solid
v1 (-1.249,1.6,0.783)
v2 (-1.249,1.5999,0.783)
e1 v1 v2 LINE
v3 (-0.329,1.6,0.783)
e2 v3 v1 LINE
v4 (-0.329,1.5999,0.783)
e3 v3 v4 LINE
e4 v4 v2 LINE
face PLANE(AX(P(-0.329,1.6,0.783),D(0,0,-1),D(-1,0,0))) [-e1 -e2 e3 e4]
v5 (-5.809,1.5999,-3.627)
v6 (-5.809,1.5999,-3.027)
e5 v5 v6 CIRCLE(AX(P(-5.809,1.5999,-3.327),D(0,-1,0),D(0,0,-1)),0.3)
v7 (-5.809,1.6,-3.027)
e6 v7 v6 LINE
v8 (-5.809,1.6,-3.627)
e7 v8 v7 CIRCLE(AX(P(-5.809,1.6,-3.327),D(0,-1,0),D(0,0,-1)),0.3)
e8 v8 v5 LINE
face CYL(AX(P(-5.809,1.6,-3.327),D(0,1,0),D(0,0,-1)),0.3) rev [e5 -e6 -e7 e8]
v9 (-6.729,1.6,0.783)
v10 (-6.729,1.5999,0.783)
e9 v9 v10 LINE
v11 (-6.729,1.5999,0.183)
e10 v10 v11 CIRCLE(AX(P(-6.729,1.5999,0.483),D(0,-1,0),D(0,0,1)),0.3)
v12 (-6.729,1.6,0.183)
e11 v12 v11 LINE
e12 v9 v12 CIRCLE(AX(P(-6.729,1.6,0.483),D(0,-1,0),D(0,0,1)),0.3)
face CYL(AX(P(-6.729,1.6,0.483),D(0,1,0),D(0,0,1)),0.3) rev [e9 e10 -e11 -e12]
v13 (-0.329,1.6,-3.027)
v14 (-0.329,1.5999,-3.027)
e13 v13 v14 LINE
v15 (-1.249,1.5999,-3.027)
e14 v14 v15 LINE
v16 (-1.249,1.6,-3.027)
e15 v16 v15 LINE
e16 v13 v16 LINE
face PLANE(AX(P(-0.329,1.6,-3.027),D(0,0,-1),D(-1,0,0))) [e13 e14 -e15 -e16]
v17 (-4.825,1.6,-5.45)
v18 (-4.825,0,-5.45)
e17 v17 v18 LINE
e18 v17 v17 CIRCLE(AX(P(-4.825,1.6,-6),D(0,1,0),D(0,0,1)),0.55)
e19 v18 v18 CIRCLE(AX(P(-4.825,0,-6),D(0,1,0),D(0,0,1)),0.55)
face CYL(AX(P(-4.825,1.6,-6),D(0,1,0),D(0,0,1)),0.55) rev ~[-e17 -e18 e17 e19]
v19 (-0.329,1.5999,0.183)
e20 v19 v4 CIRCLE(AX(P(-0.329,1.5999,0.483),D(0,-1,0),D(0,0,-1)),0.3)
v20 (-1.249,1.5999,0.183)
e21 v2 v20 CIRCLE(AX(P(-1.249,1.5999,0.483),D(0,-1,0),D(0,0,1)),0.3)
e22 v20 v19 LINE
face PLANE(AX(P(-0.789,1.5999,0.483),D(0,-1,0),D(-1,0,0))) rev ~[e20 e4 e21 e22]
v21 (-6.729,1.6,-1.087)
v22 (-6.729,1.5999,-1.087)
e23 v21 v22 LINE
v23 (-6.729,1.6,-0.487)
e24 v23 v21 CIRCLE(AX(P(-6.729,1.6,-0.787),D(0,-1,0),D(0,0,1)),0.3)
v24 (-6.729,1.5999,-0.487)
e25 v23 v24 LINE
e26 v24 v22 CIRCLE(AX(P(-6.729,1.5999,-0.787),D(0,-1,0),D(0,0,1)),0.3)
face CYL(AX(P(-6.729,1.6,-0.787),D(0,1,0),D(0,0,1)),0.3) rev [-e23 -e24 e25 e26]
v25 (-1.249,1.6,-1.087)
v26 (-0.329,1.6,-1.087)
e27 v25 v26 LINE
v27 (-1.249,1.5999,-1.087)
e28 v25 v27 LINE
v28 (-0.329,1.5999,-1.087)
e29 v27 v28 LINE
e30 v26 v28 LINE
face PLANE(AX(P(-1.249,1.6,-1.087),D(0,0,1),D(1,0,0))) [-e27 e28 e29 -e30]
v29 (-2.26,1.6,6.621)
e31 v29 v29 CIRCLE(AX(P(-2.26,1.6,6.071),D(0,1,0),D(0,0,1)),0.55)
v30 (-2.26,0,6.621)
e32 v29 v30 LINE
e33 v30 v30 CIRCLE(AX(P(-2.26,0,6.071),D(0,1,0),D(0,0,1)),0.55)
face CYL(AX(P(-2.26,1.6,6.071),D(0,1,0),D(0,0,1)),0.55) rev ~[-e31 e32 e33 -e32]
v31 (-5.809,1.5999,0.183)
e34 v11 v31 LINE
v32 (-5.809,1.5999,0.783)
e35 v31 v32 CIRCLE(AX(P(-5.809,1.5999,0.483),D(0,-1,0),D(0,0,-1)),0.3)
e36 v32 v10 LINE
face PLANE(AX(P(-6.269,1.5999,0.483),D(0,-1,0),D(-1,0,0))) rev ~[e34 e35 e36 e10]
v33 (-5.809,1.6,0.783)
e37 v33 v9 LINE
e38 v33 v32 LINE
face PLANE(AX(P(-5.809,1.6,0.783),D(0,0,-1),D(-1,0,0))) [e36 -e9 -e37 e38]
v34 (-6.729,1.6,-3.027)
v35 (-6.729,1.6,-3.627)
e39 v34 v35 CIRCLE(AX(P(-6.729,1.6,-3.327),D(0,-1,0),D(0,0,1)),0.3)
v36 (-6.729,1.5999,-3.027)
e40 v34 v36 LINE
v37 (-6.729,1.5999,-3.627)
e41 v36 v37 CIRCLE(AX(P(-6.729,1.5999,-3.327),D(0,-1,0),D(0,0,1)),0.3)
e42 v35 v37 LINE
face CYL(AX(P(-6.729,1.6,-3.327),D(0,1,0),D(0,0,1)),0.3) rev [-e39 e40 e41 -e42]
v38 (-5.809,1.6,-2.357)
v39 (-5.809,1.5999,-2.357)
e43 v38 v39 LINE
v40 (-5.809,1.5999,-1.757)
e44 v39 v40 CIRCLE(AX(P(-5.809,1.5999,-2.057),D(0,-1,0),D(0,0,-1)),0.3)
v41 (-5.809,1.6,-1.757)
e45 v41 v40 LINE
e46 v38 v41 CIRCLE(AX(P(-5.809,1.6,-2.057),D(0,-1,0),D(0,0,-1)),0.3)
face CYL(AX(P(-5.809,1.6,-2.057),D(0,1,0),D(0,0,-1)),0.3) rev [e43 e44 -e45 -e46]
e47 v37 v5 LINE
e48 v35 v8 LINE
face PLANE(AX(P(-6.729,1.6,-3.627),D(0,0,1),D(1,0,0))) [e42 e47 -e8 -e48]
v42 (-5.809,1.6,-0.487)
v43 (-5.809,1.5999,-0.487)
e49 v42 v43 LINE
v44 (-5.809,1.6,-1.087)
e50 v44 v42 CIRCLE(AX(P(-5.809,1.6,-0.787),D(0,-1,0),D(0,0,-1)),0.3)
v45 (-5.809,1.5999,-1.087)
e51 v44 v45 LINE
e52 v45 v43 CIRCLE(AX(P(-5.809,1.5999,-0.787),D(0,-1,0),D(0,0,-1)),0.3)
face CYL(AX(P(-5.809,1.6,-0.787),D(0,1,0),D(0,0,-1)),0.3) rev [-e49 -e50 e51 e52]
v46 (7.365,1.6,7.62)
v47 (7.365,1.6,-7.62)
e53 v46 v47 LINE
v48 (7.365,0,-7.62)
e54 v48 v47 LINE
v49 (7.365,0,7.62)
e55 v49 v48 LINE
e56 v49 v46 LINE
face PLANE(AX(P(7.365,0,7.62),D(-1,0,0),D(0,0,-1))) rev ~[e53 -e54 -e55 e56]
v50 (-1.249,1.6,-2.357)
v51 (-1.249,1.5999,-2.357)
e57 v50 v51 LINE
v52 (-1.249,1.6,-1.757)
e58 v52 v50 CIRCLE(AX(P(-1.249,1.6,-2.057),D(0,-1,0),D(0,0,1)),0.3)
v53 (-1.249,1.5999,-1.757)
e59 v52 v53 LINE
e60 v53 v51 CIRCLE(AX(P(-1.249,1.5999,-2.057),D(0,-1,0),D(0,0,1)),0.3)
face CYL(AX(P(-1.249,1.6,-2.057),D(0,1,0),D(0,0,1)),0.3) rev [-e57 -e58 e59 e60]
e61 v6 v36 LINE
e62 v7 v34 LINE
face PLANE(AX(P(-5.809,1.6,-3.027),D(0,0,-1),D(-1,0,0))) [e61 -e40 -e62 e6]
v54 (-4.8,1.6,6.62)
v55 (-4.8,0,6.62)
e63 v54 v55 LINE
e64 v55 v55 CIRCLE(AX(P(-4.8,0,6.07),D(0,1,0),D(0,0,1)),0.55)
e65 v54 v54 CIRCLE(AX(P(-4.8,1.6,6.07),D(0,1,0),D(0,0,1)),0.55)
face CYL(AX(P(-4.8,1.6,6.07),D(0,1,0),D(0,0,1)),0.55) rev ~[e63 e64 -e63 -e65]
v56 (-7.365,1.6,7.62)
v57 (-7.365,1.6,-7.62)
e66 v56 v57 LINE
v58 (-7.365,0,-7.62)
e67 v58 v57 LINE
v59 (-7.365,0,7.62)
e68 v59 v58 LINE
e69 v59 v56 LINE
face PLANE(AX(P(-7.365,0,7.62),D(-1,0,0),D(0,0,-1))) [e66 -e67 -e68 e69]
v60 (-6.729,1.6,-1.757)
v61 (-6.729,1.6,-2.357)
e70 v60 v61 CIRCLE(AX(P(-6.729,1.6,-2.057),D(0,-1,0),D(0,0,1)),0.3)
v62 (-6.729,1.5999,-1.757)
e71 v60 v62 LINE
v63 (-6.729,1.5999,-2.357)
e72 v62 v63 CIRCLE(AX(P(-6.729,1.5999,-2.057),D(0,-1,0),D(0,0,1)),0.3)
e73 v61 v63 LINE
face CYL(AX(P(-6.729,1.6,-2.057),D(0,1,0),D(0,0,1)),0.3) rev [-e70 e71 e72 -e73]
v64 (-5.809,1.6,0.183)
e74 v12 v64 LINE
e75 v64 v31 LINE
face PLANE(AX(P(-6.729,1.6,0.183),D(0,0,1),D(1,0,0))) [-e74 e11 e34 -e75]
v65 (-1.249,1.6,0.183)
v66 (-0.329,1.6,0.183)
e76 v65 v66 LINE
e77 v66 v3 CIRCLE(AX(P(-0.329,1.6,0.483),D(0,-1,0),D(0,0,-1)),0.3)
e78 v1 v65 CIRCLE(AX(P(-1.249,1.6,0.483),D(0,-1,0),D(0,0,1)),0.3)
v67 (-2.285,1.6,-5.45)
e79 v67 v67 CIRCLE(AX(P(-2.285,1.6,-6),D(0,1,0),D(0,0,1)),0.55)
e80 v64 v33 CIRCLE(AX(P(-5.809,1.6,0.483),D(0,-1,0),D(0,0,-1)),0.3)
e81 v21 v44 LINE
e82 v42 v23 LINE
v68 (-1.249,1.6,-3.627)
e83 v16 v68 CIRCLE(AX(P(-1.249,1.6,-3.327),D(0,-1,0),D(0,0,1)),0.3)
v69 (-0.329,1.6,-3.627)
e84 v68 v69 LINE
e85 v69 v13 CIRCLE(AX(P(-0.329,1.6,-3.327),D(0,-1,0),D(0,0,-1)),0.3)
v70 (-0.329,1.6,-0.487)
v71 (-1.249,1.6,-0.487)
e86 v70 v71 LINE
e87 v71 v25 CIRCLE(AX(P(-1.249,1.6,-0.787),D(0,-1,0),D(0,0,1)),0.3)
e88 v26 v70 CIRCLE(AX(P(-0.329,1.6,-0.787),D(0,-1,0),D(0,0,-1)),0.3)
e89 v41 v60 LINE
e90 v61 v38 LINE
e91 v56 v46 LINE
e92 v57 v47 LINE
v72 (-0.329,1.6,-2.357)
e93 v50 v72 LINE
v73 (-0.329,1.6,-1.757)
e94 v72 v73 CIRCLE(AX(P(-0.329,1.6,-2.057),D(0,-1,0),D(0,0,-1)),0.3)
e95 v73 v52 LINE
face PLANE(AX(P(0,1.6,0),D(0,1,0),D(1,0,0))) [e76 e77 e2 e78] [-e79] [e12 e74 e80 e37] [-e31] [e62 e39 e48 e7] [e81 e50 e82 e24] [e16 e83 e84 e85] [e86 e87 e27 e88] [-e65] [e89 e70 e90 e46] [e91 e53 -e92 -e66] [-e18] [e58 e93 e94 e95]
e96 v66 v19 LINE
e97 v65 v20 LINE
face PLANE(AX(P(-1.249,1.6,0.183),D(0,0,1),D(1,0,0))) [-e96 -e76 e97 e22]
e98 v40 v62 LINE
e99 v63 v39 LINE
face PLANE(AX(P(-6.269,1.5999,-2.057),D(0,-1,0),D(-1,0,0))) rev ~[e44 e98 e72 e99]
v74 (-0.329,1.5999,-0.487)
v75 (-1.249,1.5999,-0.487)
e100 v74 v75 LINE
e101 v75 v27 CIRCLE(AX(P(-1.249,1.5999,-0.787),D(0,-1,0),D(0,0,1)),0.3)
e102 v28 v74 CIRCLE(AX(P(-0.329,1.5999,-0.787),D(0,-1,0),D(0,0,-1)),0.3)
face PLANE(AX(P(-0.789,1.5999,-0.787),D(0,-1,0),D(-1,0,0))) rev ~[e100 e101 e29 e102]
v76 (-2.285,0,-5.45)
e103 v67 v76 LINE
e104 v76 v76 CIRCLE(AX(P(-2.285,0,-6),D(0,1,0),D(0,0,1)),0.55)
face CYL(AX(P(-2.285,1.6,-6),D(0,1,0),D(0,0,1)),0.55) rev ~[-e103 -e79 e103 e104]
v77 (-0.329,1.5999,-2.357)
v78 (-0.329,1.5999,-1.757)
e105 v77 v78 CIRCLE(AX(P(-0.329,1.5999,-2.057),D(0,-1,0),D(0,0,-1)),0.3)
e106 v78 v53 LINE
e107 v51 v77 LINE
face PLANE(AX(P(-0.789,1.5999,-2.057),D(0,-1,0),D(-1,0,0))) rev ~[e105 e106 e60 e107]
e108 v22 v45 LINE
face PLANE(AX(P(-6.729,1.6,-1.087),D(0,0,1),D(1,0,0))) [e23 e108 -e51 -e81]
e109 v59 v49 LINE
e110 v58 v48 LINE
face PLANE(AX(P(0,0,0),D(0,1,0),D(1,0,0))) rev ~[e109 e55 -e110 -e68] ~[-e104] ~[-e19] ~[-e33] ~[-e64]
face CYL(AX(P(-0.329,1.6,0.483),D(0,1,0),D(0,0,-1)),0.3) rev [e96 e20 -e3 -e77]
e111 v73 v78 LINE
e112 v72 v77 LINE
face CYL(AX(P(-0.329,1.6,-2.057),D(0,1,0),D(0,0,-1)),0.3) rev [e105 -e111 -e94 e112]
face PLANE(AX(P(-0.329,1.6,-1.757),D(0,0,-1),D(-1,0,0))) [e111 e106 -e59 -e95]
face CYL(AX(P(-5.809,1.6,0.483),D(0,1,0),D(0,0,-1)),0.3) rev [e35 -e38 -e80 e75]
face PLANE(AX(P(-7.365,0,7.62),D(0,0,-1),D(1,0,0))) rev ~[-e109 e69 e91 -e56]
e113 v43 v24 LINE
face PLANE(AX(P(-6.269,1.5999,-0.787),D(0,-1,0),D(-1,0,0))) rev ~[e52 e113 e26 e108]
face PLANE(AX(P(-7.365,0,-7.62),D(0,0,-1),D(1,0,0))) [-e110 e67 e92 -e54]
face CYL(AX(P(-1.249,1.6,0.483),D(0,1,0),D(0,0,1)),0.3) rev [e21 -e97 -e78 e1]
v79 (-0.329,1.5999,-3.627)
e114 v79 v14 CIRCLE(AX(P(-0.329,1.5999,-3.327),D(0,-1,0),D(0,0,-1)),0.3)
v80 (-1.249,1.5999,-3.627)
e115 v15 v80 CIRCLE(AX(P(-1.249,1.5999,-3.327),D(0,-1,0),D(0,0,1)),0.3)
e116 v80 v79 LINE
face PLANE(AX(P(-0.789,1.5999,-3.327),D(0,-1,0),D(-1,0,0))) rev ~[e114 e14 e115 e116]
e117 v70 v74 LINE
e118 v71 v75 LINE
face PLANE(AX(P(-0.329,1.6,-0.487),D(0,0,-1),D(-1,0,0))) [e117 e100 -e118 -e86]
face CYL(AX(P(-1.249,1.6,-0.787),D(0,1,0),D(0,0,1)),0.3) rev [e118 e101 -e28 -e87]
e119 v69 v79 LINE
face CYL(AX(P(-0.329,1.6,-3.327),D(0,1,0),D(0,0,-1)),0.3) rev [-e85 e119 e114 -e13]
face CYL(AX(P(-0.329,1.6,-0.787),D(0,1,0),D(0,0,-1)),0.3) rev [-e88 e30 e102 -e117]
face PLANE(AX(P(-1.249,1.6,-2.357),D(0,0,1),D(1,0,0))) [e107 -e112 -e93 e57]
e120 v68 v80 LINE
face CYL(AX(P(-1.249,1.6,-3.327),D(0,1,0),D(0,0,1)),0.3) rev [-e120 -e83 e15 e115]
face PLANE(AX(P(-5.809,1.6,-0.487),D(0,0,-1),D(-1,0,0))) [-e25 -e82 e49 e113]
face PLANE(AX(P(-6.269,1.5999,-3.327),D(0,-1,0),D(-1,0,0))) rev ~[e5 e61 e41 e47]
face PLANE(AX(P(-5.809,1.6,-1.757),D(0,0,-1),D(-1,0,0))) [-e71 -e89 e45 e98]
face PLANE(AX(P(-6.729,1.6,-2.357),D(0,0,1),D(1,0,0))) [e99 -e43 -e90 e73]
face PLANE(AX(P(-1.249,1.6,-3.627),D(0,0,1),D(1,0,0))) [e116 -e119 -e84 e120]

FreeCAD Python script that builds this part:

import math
import FreeCAD as App
import Part
import Sketcher

V = App.Vector

doc = App.newDocument("Part")
body = doc.addObject("PartDesign::Body", "Body")

sketch1 = doc.addObject("Sketcher::SketchObject", "Sketch")
body.addObject(sketch1)
sketch1.AttachmentSupport = (doc.XZ_Plane, [""])
sketch1.MapMode = "FlatFace"
sketch1.addGeometry([
    Part.LineSegment(V(-7, -8, 0), V(-7, 8, 0)),
    Part.LineSegment(V(-7, 8, 0), V(7, 8, 0)),
    Part.LineSegment(V(7, 8, 0), V(7, -8, 0)),
    Part.LineSegment(V(7, -8, 0), V(-7, -8, 0)),
], False)
sketch1.addConstraint([
    Sketcher.Constraint("Coincident", 0, 2, 1, 1),
    Sketcher.Constraint("Coincident", 1, 2, 2, 1),
    Sketcher.Constraint("Coincident", 2, 2, 3, 1),
    Sketcher.Constraint("Coincident", 3, 2, 0, 1),
    Sketcher.Constraint("Vertical", 0),
    Sketcher.Constraint("Horizontal", 1),
    Sketcher.Constraint("Vertical", 2),
    Sketcher.Constraint("Horizontal", 3),
    Sketcher.Constraint("Symmetric", 0, 2, 2, 2, -1, 1),
    Sketcher.Constraint("DistanceX", 1, 1, 1, 2, 14.73),
    Sketcher.Constraint("DistanceY", 0, 1, 0, 2, 15.24),
])
pad1 = doc.addObject("PartDesign::Pad", "Pad")
body.addObject(pad1)
pad1.Profile = sketch1
pad1.Length = 1.6
pad1.Reversed = True

sketch2 = doc.addObject("Sketcher::SketchObject", "Sketch001")
body.addObject(sketch2)
sketch2.AttachmentSupport = (doc.XZ_Plane, [""])
sketch2.MapMode = "FlatFace"
sketch2.AttachmentOffset = App.Placement(V(0, 0, -1.6), App.Rotation())
sketch2.addGeometry([
    Part.Circle(V(-4.8, -6, 0), V(0, 0, 1), 0.6),
    Part.Circle(V(-2.3, -6, 0), V(0, 0, 1), 0.6),
    Part.Circle(V(-4.8, 6.1, 0), V(0, 0, 1), 0.6),
    Part.Circle(V(-2.3, 6.1, 0), V(0, 0, 1), 0.6),
], False)
sketch2.addConstraint([
    Sketcher.Constraint("Equal", 0, 1),
    Sketcher.Constraint("Equal", 1, 2),
    Sketcher.Constraint("Equal", 2, 3),
    Sketcher.Constraint("Horizontal", 0, 3, 1, 3),
    Sketcher.Constraint("Diameter", 0, 1.1),
    Sketcher.Constraint("DistanceY", 0, 3, -1, 1, 6.0),
    Sketcher.Constraint("DistanceX", 2, 3, -1, 1, 4.8),
    Sketcher.Constraint("DistanceY", -1, 1, 2, 3, 6.07),
    Sketcher.Constraint("DistanceX", 3, 3, -1, 1, 2.26),
    Sketcher.Constraint("DistanceX", 0, 3, 1, 3, 2.54),
    Sketcher.Constraint("DistanceX", 0, 3, -1, 1, 4.825),
    Sketcher.Constraint("DistanceY", -1, 1, 3, 3, 6.071),
])
pocket1 = doc.addObject("PartDesign::Pocket", "Pocket")
body.addObject(pocket1)
pocket1.Profile = sketch2
pocket1.Type = "ThroughAll"
pocket1.Reversed = True

sketch3 = doc.addObject("Sketcher::SketchObject", "Sketch002")
body.addObject(sketch3)
sketch3.AttachmentSupport = (doc.XZ_Plane, [""])
sketch3.MapMode = "FlatFace"
sketch3.AttachmentOffset = App.Placement(V(0, 0, -1.6), App.Rotation())
sketch3.addGeometry([
    Part.LineSegment(V(-5.81, -3.63, 0), V(-6.73, -3.63, 0)),
    Part.ArcOfCircle(Part.Circle(V(-6.73, -3.33, 0), V(0, 0, 1), 0.3), math.radians(90), math.radians(270)),
    Part.LineSegment(V(-6.73, -3.03, 0), V(-5.81, -3.03, 0)),
    Part.ArcOfCircle(Part.Circle(V(-5.81, -3.33, 0), V(0, 0, 1), 0.3), math.radians(-90), math.radians(90)),
    Part.LineSegment(V(-5.81, -2.36, 0), V(-6.73, -2.36, 0)),
    Part.ArcOfCircle(Part.Circle(V(-6.73, -2.06, 0), V(0, 0, 1), 0.3), math.radians(90), math.radians(270)),
    Part.LineSegment(V(-6.73, -1.76, 0), V(-5.81, -1.76, 0)),
    Part.ArcOfCircle(Part.Circle(V(-5.81, -2.06, 0), V(0, 0, 1), 0.3), math.radians(-90), math.radians(90)),
    Part.LineSegment(V(-5.81, -1.09, 0), V(-6.73, -1.09, 0)),
    Part.ArcOfCircle(Part.Circle(V(-6.73, -0.79, 0), V(0, 0, 1), 0.3), math.radians(90), math.radians(270)),
    Part.LineSegment(V(-6.73, -0.49, 0), V(-5.81, -0.49, 0)),
    Part.ArcOfCircle(Part.Circle(V(-5.81, -0.79, 0), V(0, 0, 1), 0.3), math.radians(-90), math.radians(90)),
    Part.LineSegment(V(-5.81, 0.18, 0), V(-6.73, 0.18, 0)),
    Part.ArcOfCircle(Part.Circle(V(-6.73, 0.48, 0), V(0, 0, 1), 0.3), math.radians(90), math.radians(270)),
    Part.LineSegment(V(-6.73, 0.78, 0), V(-5.81, 0.78, 0)),
    Part.ArcOfCircle(Part.Circle(V(-5.81, 0.48, 0), V(0, 0, 1), 0.3), math.radians(-90), math.radians(90)),
    Part.LineSegment(V(-0.33, -2.36, 0), V(-1.25, -2.36, 0)),
    Part.ArcOfCircle(Part.Circle(V(-1.25, -2.06, 0), V(0, 0, 1), 0.3), math.radians(90), math.radians(270)),
    Part.LineSegment(V(-1.25, -1.76, 0), V(-0.33, -1.76, 0)),
    Part.ArcOfCircle(Part.Circle(V(-0.33, -2.06, 0), V(0, 0, 1), 0.3), math.radians(-90), math.radians(90)),
    Part.LineSegment(V(-0.33, -1.09, 0), V(-1.25, -1.09, 0)),
    Part.ArcOfCircle(Part.Circle(V(-1.25, -0.79, 0), V(0, 0, 1), 0.3), math.radians(90), math.radians(270)),
    Part.LineSegment(V(-1.25, -0.49, 0), V(-0.33, -0.49, 0)),
    Part.ArcOfCircle(Part.Circle(V(-0.33, -0.79, 0), V(0, 0, 1), 0.3), math.radians(-90), math.radians(90)),
    Part.LineSegment(V(-0.33, 0.18, 0), V(-1.25, 0.18, 0)),
    Part.ArcOfCircle(Part.Circle(V(-1.25, 0.48, 0), V(0, 0, 1), 0.3), math.radians(90), math.radians(270)),
    Part.LineSegment(V(-1.25, 0.78, 0), V(-0.33, 0.78, 0)),
    Part.ArcOfCircle(Part.Circle(V(-0.33, 0.48, 0), V(0, 0, 1), 0.3), math.radians(-90), math.radians(90)),
    Part.LineSegment(V(-0.33, -3.63, 0), V(-1.25, -3.63, 0)),
    Part.ArcOfCircle(Part.Circle(V(-1.25, -3.33, 0), V(0, 0, 1), 0.3), math.radians(90), math.radians(270)),
    Part.LineSegment(V(-1.25, -3.03, 0), V(-0.33, -3.03, 0)),
    Part.ArcOfCircle(Part.Circle(V(-0.33, -3.33, 0), V(0, 0, 1), 0.3), math.radians(-90), math.radians(90)),
], False)
sketch3.addConstraint([
    Sketcher.Constraint("Tangent", 0, 2, 1, 2),
    Sketcher.Constraint("Tangent", 1, 1, 2, 1),
    Sketcher.Constraint("Tangent", 2, 2, 3, 2),
    Sketcher.Constraint("Tangent", 3, 1, 0, 1),
    Sketcher.Constraint("Tangent", 4, 2, 5, 2),
    Sketcher.Constraint("Tangent", 5, 1, 6, 1),
    Sketcher.Constraint("Tangent", 6, 2, 7, 2),
    Sketcher.Constraint("Tangent", 7, 1, 4, 1),
    Sketcher.Constraint("Tangent", 8, 2, 9, 2),
    Sketcher.Constraint("Tangent", 9, 1, 10, 1),
    Sketcher.Constraint("Tangent", 10, 2, 11, 2),
    Sketcher.Constraint("Tangent", 11, 1, 8, 1),
    Sketcher.Constraint("Tangent", 12, 2, 13, 2),
    Sketcher.Constraint("Tangent", 13, 1, 14, 1),
    Sketcher.Constraint("Tangent", 14, 2, 15, 2),
    Sketcher.Constraint("Tangent", 15, 1, 12, 1),
    Sketcher.Constraint("Tangent", 16, 2, 17, 2),
    Sketcher.Constraint("Tangent", 17, 1, 18, 1),
    Sketcher.Constraint("Tangent", 18, 2, 19, 2),
    Sketcher.Constraint("Tangent", 19, 1, 16, 1),
    Sketcher.Constraint("Tangent", 20, 2, 21, 2),
    Sketcher.Constraint("Tangent", 21, 1, 22, 1),
    Sketcher.Constraint("Tangent", 22, 2, 23, 2),
    Sketcher.Constraint("Tangent", 23, 1, 20, 1),
    Sketcher.Constraint("Tangent", 24, 2, 25, 2),
    Sketcher.Constraint("Tangent", 25, 1, 26, 1),
    Sketcher.Constraint("Tangent", 26, 2, 27, 2),
    Sketcher.Constraint("Tangent", 27, 1, 24, 1),
    Sketcher.Constraint("Tangent", 28, 2, 29, 2),
    Sketcher.Constraint("Tangent", 29, 1, 30, 1),
    Sketcher.Constraint("Tangent", 30, 2, 31, 2),
    Sketcher.Constraint("Tangent", 31, 1, 28, 1),
    Sketcher.Constraint("Horizontal", 0),
    Sketcher.Constraint("Horizontal", 2),
    Sketcher.Constraint("Horizontal", 4),
    Sketcher.Constraint("Horizontal", 6),
    Sketcher.Constraint("Horizontal", 8),
    Sketcher.Constraint("Horizontal", 10),
    Sketcher.Constraint("Horizontal", 12),
    Sketcher.Constraint("Horizontal", 14),
    Sketcher.Constraint("Horizontal", 16),
    Sketcher.Constraint("Horizontal", 18),
    Sketcher.Constraint("Horizontal", 20),
    Sketcher.Constraint("Horizontal", 22),
    Sketcher.Constraint("Horizontal", 24),
    Sketcher.Constraint("Horizontal", 26),
    Sketcher.Constraint("Horizontal", 28),
    Sketcher.Constraint("Horizontal", 30),
    Sketcher.Constraint("Equal", 3, 5),
    Sketcher.Constraint("Equal", 7, 9),
    Sketcher.Constraint("Equal", 11, 13),
    Sketcher.Constraint("Equal", 15, 17),
    Sketcher.Constraint("Equal", 19, 21),
    Sketcher.Constraint("Equal", 23, 25),
    Sketcher.Constraint("Equal", 27, 29),
    Sketcher.Constraint("Horizontal", 7, 3, 17, 3),
    Sketcher.Constraint("Horizontal", 11, 3, 21, 3),
    Sketcher.Constraint("Horizontal", 15, 3, 25, 3),
    Sketcher.Constraint("Horizontal", 3, 3, 29, 3),
    Sketcher.Constraint("Vertical", 1, 3, 5, 3),
    Sketcher.Constraint("Vertical", 3, 3, 7, 3),
    Sketcher.Constraint("Vertical", 5, 3, 9, 3),
    Sketcher.Constraint("Vertical", 7, 3, 11, 3),
    Sketcher.Constraint("Vertical", 9, 3, 13, 3),
    Sketcher.Constraint("Vertical", 11, 3, 15, 3),
    Sketcher.Constraint("Vertical", 17, 3, 21, 3),
    Sketcher.Constraint("Vertical", 19, 3, 23, 3),
    Sketcher.Constraint("Vertical", 21, 3, 25, 3),
    Sketcher.Constraint("Vertical", 23, 3, 27, 3),
    Sketcher.Constraint("Vertical", 25, 3, 29, 3),
    Sketcher.Constraint("Vertical", 27, 3, 31, 3),
    Sketcher.Constraint("Equal", 14, 16),
    Sketcher.Constraint("Radius", 1, 0.3),
    Sketcher.Constraint("DistanceX", 0, 2, 0, 1, 0.92),
    Sketcher.Constraint("DistanceY", 1, 3, 5, 3, 1.27),
    Sketcher.Constraint("DistanceY", 5, 3, 9, 3, 1.27),
    Sketcher.Constraint("DistanceY", 9, 3, 13, 3, 1.27),
    Sketcher.Constraint("DistanceX", 7, 3, 17, 3, 4.56),
    Sketcher.Constraint("DistanceX", 1, 3, -1, 1, 6.729),
    Sketcher.Constraint("DistanceY", 1, 3, -1, 1, 3.327),
])
pocket2 = doc.addObject("PartDesign::Pocket", "Pocket001")
body.addObject(pocket2)
pocket2.Profile = sketch3
pocket2.Length = 0.0001
pocket2.Reversed = True

doc.recompute()
